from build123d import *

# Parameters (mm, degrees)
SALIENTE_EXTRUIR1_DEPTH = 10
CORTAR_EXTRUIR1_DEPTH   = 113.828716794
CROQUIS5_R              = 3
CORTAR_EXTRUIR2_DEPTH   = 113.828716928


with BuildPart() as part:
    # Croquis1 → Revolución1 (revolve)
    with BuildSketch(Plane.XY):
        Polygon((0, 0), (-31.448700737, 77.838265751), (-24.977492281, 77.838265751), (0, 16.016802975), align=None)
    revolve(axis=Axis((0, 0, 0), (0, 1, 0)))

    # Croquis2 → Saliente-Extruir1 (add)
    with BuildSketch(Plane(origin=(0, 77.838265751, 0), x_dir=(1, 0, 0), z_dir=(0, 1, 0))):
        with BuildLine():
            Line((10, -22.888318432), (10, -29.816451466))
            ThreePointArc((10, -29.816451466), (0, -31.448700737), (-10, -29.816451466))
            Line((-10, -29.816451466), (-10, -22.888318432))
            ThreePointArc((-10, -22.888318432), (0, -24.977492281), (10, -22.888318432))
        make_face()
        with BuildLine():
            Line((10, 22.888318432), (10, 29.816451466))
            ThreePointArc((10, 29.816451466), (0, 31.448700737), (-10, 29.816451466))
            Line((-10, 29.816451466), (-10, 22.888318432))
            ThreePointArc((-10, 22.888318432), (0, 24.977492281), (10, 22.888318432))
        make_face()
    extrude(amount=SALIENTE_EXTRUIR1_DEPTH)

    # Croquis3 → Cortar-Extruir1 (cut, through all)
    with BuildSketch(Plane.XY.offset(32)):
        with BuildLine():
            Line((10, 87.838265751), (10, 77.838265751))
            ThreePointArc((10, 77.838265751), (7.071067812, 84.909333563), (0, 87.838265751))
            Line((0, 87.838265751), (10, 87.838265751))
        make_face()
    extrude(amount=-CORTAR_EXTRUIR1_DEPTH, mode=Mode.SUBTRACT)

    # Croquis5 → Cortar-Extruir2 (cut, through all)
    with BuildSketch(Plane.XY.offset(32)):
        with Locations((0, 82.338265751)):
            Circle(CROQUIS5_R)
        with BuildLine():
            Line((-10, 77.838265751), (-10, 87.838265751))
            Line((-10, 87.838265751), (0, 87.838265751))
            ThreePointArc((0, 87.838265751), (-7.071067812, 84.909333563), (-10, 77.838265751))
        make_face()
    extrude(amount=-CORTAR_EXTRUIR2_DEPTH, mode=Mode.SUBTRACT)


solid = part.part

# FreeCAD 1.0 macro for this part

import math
import FreeCAD as App
import Part
import Sketcher
from FreeCAD import Vector
Q = App.Units.Quantity


def add_polygon(sketch, points):
    """Adds a closed chain of lines whose ends are joined by coincident constraints."""
    first, n = sketch.GeometryCount, len(points)
    for a, b in zip(points, points[1:] + points[:1]):
        sketch.addGeometry(Part.LineSegment(App.Vector(*a, 0), App.Vector(*b, 0)), False)
    for i in range(n):
        sketch.addConstraint(Sketcher.Constraint("Coincident", first + i, 2, first + (i + 1) % n, 1))

doc = App.newDocument("Part")
body = doc.addObject("PartDesign::Body", "Body")

sketch1 = body.newObject("Sketcher::SketchObject", "Sketch")
sketch1.AttachmentSupport = (doc.getObject("XY_Plane"), [""])
sketch1.MapMode = "FlatFace"
add_polygon(sketch1, [(-31.448701, 77.838266), (0, 0), (0, 16.016803), (-24.977492, 77.838266)])
sketch1.addConstraint([
    Sketcher.Constraint("Vertical", 1),
    Sketcher.Constraint("Horizontal", 3),
    Sketcher.Constraint("Coincident", 0, 2, -1, 1),
    Sketcher.Constraint("Parallel", 0, 2),
    Sketcher.Constraint("Angle", 0, Q("-68 deg")),
    Sketcher.Constraint("DistanceX", 3, 2, 3, 1, Q("6.471208 mm")),
    Sketcher.Constraint("DistanceX", 3, 2, -1, 1, Q("31.448701 mm")),
])
revolution = body.newObject("PartDesign::Revolution", "Revolution")
revolution.Profile = sketch1
revolution.ReferenceAxis = (sketch1, ["V_Axis"])
revolution.Angle = 360

sketch2 = body.newObject("Sketcher::SketchObject", "Sketch001")
sketch2.AttachmentSupport = (doc.getObject("XZ_Plane"), [""])
sketch2.MapMode = "FlatFace"
sketch2.AttachmentOffset = App.Placement(Vector(0, 0, -77.838266), App.Rotation())
sketch2.addGeometry([
    Part.LineSegment(Vector(10, 29.816451, 0), Vector(10, 22.888318, 0)),
    Part.ArcOfCircle(Part.Circle(Vector(0, 0, 0), Vector(0, 0, 1), 24.977492), math.radians(66.399286), math.radians(113.600714)),
    Part.LineSegment(Vector(-10, 22.888318, 0), Vector(-10, 29.816451, 0)),
    Part.ArcOfCircle(Part.Circle(Vector(0, 0, 0), Vector(0, 0, 1), 31.448701), math.radians(71.459303), math.radians(108.540697)),
    Part.LineSegment(Vector(10, -22.888318, 0), Vector(10, -29.816451, 0)),
    Part.ArcOfCircle(Part.Circle(Vector(0, 0, 0), Vector(0, 0, 1), 31.448701), math.radians(-108.540697), math.radians(-71.459303)),
    Part.LineSegment(Vector(-10, -29.816451, 0), Vector(-10, -22.888318, 0)),
    Part.ArcOfCircle(Part.Circle(Vector(0, 0, 0), Vector(0, 0, 1), 24.977492), math.radians(-113.600714), math.radians(-66.399286)),
], False)
sketch2.addConstraint([
    Sketcher.Constraint("Coincident", 0, 2, 1, 1),
    Sketcher.Constraint("Coincident", 1, 2, 2, 1),
    Sketcher.Constraint("Coincident", 2, 2, 3, 2),
    Sketcher.Constraint("Coincident", 3, 1, 0, 1),
    Sketcher.Constraint("Coincident", 4, 2, 5, 2),
    Sketcher.Constraint("Coincident", 5, 1, 6, 1),
    Sketcher.Constraint("Coincident", 6, 2, 7, 1),
    Sketcher.Constraint("Coincident", 7, 2, 4, 1),
    Sketcher.Constraint("Vertical", 0),
    Sketcher.Constraint("Vertical", 2),
    Sketcher.Constraint("Vertical", 4),
    Sketcher.Constraint("Vertical", 6),
    Sketcher.Constraint("Coincident", 1, 3, -1, 1),
    Sketcher.Constraint("Coincident", 3, 3, -1, 1),
    Sketcher.Constraint("Coincident", 5, 3, -1, 1),
    Sketcher.Constraint("Coincident", 7, 3, -1, 1),
    Sketcher.Constraint("Equal", 3, 5),
    Sketcher.Constraint("Equal", 1, 7),
    Sketcher.Constraint("Horizontal", 0, 2, 1, 2),
    Sketcher.Constraint("Horizontal", 4, 2, 5, 1),
    Sketcher.Constraint("Vertical", 3, 1, 4, 2),
    Sketcher.Constraint("DistanceX", -1, 1, 0, 2, Q("10 mm")),
    Sketcher.Constraint("Radius", 3, Q("31.448701 mm")),
    Sketcher.Constraint("Radius", 1, Q("24.977492 mm")),
])
pad1 = body.newObject("PartDesign::Pad", "Pad")
pad1.Profile = sketch2
pad1.Length = 10
pad1.Reversed = True

sketch3 = body.newObject("Sketcher::SketchObject", "Sketch002")
sketch3.AttachmentSupport = (doc.getObject("XY_Plane"), [""])
sketch3.MapMode = "FlatFace"
sketch3.AttachmentOffset = App.Placement(Vector(0, 0, 32), App.Rotation())
sketch3.addGeometry([
    Part.LineSegment(Vector(10, 77.838266, 0), Vector(10, 87.838266, 0)),
    Part.LineSegment(Vector(10, 87.838266, 0), Vector(0, 87.838266, 0)),
    Part.ArcOfCircle(Part.Circle(Vector(0, 77.838266, 0), Vector(0, 0, 1), 10), math.radians(0), math.radians(90)),
], False)
sketch3.addConstraint([
    Sketcher.Constraint("Coincident", 0, 2, 1, 1),
    Sketcher.Constraint("Tangent", 1, 2, 2, 2),
    Sketcher.Constraint("Tangent", 2, 1, 0, 1),
    Sketcher.Constraint("Vertical", 0),
    Sketcher.Constraint("Horizontal", 1),
    Sketcher.Constraint("PointOnObject", 2, 3, -2),
    Sketcher.Constraint("Radius", 2, Q("10 mm")),
    Sketcher.Constraint("DistanceY", -1, 1, 2, 3, Q("77.838266 mm")),
])
pocket1 = body.newObject("PartDesign::Pocket", "Pocket")
pocket1.Profile = sketch3
pocket1.Type = "ThroughAll"

sketch4 = body.newObject("Sketcher::SketchObject", "Sketch003")
sketch4.AttachmentSupport = (doc.getObject("XY_Plane"), [""])
sketch4.MapMode = "FlatFace"
sketch4.AttachmentOffset = App.Placement(Vector(0, 0, 32), App.Rotation())
sketch4.addGeometry([
    Part.Circle(Vector(0, 82.338266, 0), Vector(0, 0, 1), 3),
    Part.LineSegment(Vector(-10, 87.838266, 0), Vector(-10, 77.838266, 0)),
    Part.ArcOfCircle(Part.Circle(Vector(0, 77.838266, 0), Vector(0, 0, 1), 10), math.radians(90), math.radians(180)),
    Part.LineSegment(Vector(0, 87.838266, 0), Vector(-10, 87.838266, 0)),
], False)
sketch4.addConstraint([
    Sketcher.Constraint("Tangent", 1, 2, 2, 2),
    Sketcher.Constraint("Tangent", 2, 1, 3, 1),
    Sketcher.Constraint("Coincident", 3, 2, 1, 1),
    Sketcher.Constraint("Vertical", 1),
    Sketcher.Constraint("Horizontal", 3),
    Sketcher.Constraint("PointOnObject", 0, 3, -2),
    Sketcher.Constraint("PointOnObject", 2, 3, -2),
    Sketcher.Constraint("Diameter", 0, Q("6 mm")),
    Sketcher.Constraint("Radius", 2, Q("10 mm")),
    Sketcher.Constraint("DistanceY", 2, 3, 0, 3, Q("4.5 mm")),
    Sketcher.Constraint("DistanceY", -1, 1, 0, 3, Q("82.338266 mm")),
])
pocket2 = body.newObject("PartDesign::Pocket", "Pocket001")
pocket2.Profile = sketch4
pocket2.Type = "ThroughAll"

doc.recompute()
